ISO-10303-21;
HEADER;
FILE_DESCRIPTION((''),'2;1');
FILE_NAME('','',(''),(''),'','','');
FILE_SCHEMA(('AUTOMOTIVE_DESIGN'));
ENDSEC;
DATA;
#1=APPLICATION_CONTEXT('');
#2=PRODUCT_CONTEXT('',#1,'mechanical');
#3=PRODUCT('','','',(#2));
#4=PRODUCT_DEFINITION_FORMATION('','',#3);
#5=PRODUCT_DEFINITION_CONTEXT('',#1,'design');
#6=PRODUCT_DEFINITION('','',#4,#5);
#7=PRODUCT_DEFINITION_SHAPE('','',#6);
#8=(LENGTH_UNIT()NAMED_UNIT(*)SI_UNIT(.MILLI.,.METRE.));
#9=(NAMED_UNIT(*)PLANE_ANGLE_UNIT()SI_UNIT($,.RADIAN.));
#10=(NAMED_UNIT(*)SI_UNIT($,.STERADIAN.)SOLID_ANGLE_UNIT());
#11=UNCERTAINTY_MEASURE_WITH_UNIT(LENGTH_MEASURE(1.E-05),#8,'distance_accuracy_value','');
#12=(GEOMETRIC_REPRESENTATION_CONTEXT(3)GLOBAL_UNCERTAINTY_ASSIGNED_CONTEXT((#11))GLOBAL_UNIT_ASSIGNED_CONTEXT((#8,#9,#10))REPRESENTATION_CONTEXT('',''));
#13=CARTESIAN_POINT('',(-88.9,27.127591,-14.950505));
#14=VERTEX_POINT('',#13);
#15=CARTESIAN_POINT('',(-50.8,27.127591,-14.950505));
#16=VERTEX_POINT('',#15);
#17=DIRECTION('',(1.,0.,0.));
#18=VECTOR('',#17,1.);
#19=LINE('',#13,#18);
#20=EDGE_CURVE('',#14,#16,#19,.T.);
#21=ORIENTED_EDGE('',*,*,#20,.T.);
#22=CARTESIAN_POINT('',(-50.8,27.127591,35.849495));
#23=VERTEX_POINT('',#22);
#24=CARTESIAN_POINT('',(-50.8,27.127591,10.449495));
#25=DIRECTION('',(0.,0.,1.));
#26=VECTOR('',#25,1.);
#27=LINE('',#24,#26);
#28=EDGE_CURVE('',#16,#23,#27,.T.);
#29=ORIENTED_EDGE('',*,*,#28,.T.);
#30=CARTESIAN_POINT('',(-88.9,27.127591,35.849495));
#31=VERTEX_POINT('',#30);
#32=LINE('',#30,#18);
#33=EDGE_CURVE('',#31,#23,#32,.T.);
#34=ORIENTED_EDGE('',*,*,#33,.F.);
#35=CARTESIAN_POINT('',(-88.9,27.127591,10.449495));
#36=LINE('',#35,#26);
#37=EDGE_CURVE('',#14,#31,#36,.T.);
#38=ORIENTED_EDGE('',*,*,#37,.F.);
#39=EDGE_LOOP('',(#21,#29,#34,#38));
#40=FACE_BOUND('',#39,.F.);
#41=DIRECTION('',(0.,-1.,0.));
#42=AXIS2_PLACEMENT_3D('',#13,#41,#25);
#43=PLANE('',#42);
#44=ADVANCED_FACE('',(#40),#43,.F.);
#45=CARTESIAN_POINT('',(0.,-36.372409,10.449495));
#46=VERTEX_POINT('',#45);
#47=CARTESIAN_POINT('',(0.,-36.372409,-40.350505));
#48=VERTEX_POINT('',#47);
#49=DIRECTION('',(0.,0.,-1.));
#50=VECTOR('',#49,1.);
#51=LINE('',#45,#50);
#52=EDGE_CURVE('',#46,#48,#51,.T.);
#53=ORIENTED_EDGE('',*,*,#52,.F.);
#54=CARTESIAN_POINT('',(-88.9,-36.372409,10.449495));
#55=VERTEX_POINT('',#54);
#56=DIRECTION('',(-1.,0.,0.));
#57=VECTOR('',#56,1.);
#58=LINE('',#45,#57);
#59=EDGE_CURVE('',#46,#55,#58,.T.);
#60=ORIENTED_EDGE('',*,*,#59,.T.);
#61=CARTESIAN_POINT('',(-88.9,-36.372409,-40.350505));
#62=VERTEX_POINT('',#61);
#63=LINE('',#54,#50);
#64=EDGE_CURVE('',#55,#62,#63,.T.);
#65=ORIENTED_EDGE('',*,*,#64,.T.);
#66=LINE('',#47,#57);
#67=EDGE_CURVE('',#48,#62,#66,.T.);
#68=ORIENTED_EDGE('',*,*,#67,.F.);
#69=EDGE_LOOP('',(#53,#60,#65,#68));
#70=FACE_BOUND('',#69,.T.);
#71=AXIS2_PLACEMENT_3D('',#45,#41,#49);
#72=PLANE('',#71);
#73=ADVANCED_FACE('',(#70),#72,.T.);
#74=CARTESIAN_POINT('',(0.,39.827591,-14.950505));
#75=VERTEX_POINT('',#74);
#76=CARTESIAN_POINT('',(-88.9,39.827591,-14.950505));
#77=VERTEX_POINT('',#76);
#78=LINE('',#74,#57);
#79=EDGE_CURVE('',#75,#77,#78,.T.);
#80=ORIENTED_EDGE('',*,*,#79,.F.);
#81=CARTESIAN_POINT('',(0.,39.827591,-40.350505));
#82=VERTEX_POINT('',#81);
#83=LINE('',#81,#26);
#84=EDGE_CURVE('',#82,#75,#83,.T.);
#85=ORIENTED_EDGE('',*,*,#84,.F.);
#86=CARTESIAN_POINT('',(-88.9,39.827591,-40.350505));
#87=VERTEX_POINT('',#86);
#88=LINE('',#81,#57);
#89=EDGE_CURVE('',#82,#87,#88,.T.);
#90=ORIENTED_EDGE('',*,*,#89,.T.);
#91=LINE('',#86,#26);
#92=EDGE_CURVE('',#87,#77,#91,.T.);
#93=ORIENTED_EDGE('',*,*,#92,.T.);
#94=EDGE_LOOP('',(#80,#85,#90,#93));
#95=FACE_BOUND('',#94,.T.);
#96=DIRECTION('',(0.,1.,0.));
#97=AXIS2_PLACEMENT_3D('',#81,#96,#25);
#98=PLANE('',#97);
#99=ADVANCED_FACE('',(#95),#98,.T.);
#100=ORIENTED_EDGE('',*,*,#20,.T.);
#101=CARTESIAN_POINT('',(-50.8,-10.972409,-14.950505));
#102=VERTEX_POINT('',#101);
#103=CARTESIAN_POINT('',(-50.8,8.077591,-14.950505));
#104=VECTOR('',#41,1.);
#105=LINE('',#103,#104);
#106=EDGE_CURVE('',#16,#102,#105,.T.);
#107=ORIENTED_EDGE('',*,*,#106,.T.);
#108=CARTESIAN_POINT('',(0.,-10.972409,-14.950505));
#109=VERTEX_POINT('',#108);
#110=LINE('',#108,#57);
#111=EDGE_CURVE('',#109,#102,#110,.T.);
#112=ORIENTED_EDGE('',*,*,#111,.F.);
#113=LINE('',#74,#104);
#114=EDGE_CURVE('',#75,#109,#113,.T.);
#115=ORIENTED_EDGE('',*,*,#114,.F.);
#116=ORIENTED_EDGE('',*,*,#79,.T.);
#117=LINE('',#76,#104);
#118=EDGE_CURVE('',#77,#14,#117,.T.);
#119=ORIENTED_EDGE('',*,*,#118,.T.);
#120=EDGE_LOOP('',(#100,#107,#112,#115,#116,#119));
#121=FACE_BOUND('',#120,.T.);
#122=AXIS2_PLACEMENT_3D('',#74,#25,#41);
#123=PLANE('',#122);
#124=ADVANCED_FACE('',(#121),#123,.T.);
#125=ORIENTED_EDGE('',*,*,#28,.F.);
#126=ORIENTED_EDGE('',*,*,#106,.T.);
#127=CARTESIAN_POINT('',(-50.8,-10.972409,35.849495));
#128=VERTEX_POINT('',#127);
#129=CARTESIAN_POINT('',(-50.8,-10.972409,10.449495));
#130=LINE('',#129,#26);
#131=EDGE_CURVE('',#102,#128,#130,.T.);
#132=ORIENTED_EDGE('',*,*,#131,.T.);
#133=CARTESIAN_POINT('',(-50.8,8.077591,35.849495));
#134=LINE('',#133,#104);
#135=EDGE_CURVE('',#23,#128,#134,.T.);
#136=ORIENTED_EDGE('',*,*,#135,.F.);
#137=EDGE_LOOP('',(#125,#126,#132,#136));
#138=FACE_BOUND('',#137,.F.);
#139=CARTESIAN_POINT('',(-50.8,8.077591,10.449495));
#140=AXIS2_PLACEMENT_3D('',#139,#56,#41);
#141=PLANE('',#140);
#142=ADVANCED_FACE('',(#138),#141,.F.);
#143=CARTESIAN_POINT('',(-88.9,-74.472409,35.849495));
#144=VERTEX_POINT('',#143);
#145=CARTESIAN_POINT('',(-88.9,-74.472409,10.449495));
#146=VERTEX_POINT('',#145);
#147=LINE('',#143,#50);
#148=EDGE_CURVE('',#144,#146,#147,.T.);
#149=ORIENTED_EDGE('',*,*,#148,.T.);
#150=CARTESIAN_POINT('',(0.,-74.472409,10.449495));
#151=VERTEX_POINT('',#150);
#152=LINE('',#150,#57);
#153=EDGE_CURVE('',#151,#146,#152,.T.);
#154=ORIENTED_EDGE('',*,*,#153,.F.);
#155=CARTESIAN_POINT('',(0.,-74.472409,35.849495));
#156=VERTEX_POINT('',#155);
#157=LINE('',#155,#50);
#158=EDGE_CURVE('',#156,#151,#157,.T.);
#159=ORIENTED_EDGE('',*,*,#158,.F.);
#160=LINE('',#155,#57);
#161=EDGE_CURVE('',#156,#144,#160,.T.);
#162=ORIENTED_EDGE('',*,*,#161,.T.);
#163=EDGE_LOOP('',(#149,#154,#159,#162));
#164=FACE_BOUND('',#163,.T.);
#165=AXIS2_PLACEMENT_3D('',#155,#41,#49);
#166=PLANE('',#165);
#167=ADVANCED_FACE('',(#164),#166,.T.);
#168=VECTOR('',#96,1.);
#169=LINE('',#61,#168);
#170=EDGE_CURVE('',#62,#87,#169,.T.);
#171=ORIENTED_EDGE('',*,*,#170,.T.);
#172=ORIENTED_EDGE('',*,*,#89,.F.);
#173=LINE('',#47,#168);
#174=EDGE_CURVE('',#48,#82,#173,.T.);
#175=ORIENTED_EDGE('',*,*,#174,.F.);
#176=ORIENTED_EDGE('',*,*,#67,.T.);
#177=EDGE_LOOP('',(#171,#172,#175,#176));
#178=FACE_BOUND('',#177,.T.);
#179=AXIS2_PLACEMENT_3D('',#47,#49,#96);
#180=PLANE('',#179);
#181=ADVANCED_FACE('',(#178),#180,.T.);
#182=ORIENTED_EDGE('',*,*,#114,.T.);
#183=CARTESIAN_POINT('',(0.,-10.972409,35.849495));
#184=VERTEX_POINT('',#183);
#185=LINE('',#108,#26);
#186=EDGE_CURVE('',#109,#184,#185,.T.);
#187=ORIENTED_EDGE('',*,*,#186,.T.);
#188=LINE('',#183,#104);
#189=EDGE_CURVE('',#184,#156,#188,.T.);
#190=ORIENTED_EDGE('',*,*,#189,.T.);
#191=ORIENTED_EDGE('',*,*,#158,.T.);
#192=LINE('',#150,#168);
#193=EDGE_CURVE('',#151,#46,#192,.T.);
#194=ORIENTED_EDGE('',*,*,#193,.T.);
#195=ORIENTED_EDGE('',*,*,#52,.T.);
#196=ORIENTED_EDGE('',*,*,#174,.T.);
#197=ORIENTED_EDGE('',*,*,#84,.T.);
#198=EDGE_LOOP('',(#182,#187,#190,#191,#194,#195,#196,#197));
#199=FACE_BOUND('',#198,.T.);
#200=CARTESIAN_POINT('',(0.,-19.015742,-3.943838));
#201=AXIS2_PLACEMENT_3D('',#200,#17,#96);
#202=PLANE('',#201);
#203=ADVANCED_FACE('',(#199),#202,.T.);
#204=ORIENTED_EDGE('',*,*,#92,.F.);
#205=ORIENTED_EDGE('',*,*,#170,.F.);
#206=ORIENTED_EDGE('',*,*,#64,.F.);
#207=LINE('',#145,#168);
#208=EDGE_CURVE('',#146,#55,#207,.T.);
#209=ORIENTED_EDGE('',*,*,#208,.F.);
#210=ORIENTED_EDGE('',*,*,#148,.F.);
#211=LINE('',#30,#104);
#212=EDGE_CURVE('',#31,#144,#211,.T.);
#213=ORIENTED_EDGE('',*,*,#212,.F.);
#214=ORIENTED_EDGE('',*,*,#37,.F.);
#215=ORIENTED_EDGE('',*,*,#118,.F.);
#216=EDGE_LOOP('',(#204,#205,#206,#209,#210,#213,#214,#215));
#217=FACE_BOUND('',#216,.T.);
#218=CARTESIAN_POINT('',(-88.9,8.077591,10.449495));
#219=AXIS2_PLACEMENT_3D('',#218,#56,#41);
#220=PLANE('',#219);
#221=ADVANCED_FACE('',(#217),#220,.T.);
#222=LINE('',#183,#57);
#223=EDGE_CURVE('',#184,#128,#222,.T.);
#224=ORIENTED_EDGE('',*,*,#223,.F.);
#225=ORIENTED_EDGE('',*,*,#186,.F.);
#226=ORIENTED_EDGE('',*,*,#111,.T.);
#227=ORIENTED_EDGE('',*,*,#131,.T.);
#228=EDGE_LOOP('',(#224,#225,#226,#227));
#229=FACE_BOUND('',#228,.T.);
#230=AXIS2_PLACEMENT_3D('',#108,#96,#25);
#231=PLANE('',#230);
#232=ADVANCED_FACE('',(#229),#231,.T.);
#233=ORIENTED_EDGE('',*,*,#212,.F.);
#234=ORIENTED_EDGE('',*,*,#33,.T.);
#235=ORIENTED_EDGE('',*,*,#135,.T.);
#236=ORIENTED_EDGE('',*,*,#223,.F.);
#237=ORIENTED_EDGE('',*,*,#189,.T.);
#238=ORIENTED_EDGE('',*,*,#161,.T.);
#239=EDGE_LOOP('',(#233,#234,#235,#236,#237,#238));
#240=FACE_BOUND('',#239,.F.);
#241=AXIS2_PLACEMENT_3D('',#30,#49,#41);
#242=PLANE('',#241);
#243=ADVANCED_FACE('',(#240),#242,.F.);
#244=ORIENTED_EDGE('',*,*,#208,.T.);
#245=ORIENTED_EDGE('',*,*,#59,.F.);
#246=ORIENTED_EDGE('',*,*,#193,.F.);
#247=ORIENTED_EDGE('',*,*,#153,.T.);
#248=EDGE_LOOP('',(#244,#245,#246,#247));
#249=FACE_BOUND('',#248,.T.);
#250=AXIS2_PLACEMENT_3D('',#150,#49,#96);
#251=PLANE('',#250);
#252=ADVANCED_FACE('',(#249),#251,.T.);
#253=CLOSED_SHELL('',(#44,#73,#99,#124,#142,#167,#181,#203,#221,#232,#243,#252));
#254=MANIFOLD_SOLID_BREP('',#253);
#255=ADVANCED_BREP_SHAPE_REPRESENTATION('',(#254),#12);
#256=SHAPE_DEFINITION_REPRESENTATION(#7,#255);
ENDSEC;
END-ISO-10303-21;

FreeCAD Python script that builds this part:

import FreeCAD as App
import Part
import Sketcher
Q = App.Units.Quantity

doc = App.newDocument("Part")
params = doc.addObject("Spreadsheet::Sheet", "Params")
for row, (alias, value) in enumerate([
    ("sketch1_width", "3 in"),
    ("sketch1_width2", "2 in"),
    ("sketch1_height", "1 in"),
    ("sketch1_width3", "2.5 in"),
    ("pad1_length", "3.5 in"),
    ("sketch2_height", "2 in"),
    ("sketch2_width", "1.5 in"),
    ("pad2_length", "1.5 in"),
], start=1):
    params.set(f"A{row}", alias)
    params.set(f"B{row}", "=" + value)
    params.setAlias(f"B{row}", alias)

body = doc.addObject("PartDesign::Body", "Body")

# Sketch on YZ plane
sketch1 = body.newObject("Sketcher::SketchObject", "Sketch")
sketch1.AttachmentSupport = (doc.getObject("YZ_Plane"), [""])
sketch1.MapMode = "FlatFace"
sketch1.addGeometry([
    Part.LineSegment(App.Vector(-10.972409, 35.849495, 0), App.Vector(-74.472409, 35.849495, 0)),  # 0
    Part.LineSegment(App.Vector(-74.472409, 35.849495, 0), App.Vector(-74.472409, 10.449495, 0)),  # 1
    Part.LineSegment(App.Vector(-74.472409, 10.449495, 0), App.Vector(-36.372409, 10.449495, 0)),  # 2
    Part.LineSegment(App.Vector(-36.372409, 10.449495, 0), App.Vector(-36.372409, -40.350505, 0)),  # 3
    Part.LineSegment(App.Vector(-36.372409, -40.350505, 0), App.Vector(39.827591, -40.350505, 0)),  # 4
    Part.LineSegment(App.Vector(39.827591, -40.350505, 0), App.Vector(39.827591, -14.950505, 0)),  # 5
    Part.LineSegment(App.Vector(39.827591, -14.950505, 0), App.Vector(-10.972409, -14.950505, 0)),  # 6
    Part.LineSegment(App.Vector(-10.972409, -14.950505, 0), App.Vector(-10.972409, 35.849495, 0)),  # 7
], False)
sketch1.addConstraint([
    Sketcher.Constraint("Coincident", 0, 2, 1, 1),
    Sketcher.Constraint("Coincident", 1, 2, 2, 1),
    Sketcher.Constraint("Coincident", 2, 2, 3, 1),
    Sketcher.Constraint("Coincident", 3, 2, 4, 1),
    Sketcher.Constraint("Coincident", 4, 2, 5, 1),
    Sketcher.Constraint("Coincident", 5, 2, 6, 1),
    Sketcher.Constraint("Coincident", 6, 2, 7, 1),
    Sketcher.Constraint("Coincident", 7, 2, 0, 1),
    Sketcher.Constraint("Horizontal", 0),
    Sketcher.Constraint("Vertical", 1),
    Sketcher.Constraint("Horizontal", 2),
    Sketcher.Constraint("Vertical", 3),
    Sketcher.Constraint("Horizontal", 4),
    Sketcher.Constraint("Vertical", 5),
    Sketcher.Constraint("Horizontal", 6),
    Sketcher.Constraint("Vertical", 7),
    Sketcher.Constraint("Equal", 6, 3),
    Sketcher.Constraint("Equal", 1, 5),
    Sketcher.Constraint("DistanceX", 4, 1, 4, 2, Q("3 in")),
    Sketcher.Constraint("DistanceX", 6, 2, 6, 1, Q("2 in")),
    Sketcher.Constraint("DistanceY", 1, 2, 1, 1, Q("1 in")),
    Sketcher.Constraint("DistanceX", 0, 2, 0, 1, Q("2.5 in")),
    Sketcher.Constraint("DistanceX", 0, 2, -1, 1, 74.472409),
    Sketcher.Constraint("DistanceY", -1, 1, 0, 2, 35.849495),
])
sketch1.setExpression("Constraints[18]", "Params.sketch1_width")
sketch1.setExpression("Constraints[19]", "Params.sketch1_width2")
sketch1.setExpression("Constraints[20]", "Params.sketch1_height")
sketch1.setExpression("Constraints[21]", "Params.sketch1_width3")
pad1 = body.newObject("PartDesign::Pad", "Pad")
pad1.Profile = sketch1
pad1.setExpression("Length", "Params.pad1_length")
pad1.Reversed = True

# Sketch on YZ plane
sketch2 = body.newObject("Sketcher::SketchObject", "Sketch001")
sketch2.AttachmentSupport = (doc.getObject("YZ_Plane"), [""])
sketch2.MapMode = "FlatFace"
sketch2.AttachmentOffset = App.Placement(App.Vector(0, 0, -3.5 * 25.4), App.Rotation())
sketch2.addGeometry([
    Part.LineSegment(App.Vector(27.127591, 35.849495, 0), App.Vector(27.127591, -14.950505, 0)),
    Part.LineSegment(App.Vector(27.127591, -14.950505, 0), App.Vector(-10.972409, -14.950505, 0)),
    Part.LineSegment(App.Vector(-10.972409, -14.950505, 0), App.Vector(-10.972409, 35.849495, 0)),
    Part.LineSegment(App.Vector(-10.972409, 35.849495, 0), App.Vector(27.127591, 35.849495, 0)),
], False)
sketch2.addConstraint([
    Sketcher.Constraint("Coincident", 0, 2, 1, 1),
    Sketcher.Constraint("Coincident", 1, 2, 2, 1),
    Sketcher.Constraint("Coincident", 2, 2, 3, 1),
    Sketcher.Constraint("Coincident", 3, 2, 0, 1),
    Sketcher.Constraint("Vertical", 0),
    Sketcher.Constraint("Horizontal", 1),
    Sketcher.Constraint("Vertical", 2),
    Sketcher.Constraint("Horizontal", 3),
    Sketcher.Constraint("DistanceY", 0, 2, 0, 1, Q("2 in")),
    Sketcher.Constraint("DistanceX", 1, 2, 1, 1, Q("1.5 in")),
    Sketcher.Constraint("DistanceX", -1, 1, 0, 2, 27.127591),
    Sketcher.Constraint("DistanceY", 0, 2, -1, 1, 14.950505),
])
sketch2.setExpression("Constraints[8]", "Params.sketch2_height")
sketch2.setExpression("Constraints[9]", "Params.sketch2_width")
pad2 = body.newObject("PartDesign::Pad", "Pad001")
pad2.Profile = sketch2
pad2.setExpression("Length", "Params.pad2_length")

doc.recompute()
